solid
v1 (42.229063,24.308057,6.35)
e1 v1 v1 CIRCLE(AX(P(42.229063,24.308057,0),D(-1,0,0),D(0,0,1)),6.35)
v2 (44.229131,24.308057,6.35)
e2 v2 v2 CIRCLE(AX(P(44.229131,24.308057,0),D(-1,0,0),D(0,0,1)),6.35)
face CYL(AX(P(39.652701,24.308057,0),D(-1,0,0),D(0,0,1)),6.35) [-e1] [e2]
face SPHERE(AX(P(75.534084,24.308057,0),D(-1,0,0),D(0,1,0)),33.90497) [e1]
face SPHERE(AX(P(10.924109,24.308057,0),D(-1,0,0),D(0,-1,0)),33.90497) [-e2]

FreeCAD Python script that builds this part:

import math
import FreeCAD as App
import Part
import Sketcher
Q = App.Units.Quantity

doc = App.newDocument("Part")
body = doc.addObject("PartDesign::Body", "Body")

# Sketch on XY plane
sketch1 = doc.addObject("Sketcher::SketchObject", "Sketch")
body.addObject(sketch1)
sketch1.AttachmentSupport = (doc.XY_Plane, [""])
sketch1.MapMode = "FlatFace"
sketch1.addGeometry([
    Part.LineSegment(App.Vector(44.2, 30.7, 0), App.Vector(42.2, 30.7, 0)),
    Part.ArcOfCircle(Part.Circle(App.Vector(75.5, 24.3, 0), App.Vector(0, 0, 1), 33.9), math.radians(169.21), math.radians(180)),
    Part.LineSegment(App.Vector(41.6, 24.3, 0), App.Vector(44.8, 24.3, 0)),
    Part.ArcOfCircle(Part.Circle(App.Vector(10.9, 24.3, 0), App.Vector(0, 0, 1), 33.9), math.radians(0), math.radians(10.79)),
], False)
sketch1.addGeometry(Part.LineSegment(App.Vector(10.9, 24.3, 0), App.Vector(75.5, 24.3, 0)), True)  # axis
sketch1.addConstraint([
    Sketcher.Constraint("Coincident", 0, 2, 1, 1),
    Sketcher.Constraint("Coincident", 1, 2, 2, 1),
    Sketcher.Constraint("Coincident", 2, 2, 3, 1),
    Sketcher.Constraint("Coincident", 3, 2, 0, 1),
    Sketcher.Constraint("Horizontal", 0),
    Sketcher.Constraint("Horizontal", 2),
    Sketcher.Constraint("Horizontal", 4),
    Sketcher.Constraint("Coincident", 4, 1, 3, 3),
    Sketcher.Constraint("Coincident", 4, 2, 1, 3),
    Sketcher.Constraint("Equal", 1, 3),
    Sketcher.Constraint("Horizontal", 3, 3, 1, 2),
    Sketcher.Constraint("Radius", 1, Q("33.90497 mm")),
    Sketcher.Constraint("DistanceY", 3, 3, 0, 2, Q("6.35 mm")),
    Sketcher.Constraint("DistanceX", 0, 2, 0, 1, Q("2.000069 mm")),
    Sketcher.Constraint("DistanceX", -1, 1, 3, 3, Q("10.924109 mm")),
    Sketcher.Constraint("DistanceY", -1, 1, 1, 3, Q("24.308057 mm")),
])
revolution = doc.addObject("PartDesign::Revolution", "Revolution")
body.addObject(revolution)
revolution.Profile = sketch1
revolution.ReferenceAxis = (sketch1, ["Axis0"])
revolution.Angle = 360

doc.recompute()
